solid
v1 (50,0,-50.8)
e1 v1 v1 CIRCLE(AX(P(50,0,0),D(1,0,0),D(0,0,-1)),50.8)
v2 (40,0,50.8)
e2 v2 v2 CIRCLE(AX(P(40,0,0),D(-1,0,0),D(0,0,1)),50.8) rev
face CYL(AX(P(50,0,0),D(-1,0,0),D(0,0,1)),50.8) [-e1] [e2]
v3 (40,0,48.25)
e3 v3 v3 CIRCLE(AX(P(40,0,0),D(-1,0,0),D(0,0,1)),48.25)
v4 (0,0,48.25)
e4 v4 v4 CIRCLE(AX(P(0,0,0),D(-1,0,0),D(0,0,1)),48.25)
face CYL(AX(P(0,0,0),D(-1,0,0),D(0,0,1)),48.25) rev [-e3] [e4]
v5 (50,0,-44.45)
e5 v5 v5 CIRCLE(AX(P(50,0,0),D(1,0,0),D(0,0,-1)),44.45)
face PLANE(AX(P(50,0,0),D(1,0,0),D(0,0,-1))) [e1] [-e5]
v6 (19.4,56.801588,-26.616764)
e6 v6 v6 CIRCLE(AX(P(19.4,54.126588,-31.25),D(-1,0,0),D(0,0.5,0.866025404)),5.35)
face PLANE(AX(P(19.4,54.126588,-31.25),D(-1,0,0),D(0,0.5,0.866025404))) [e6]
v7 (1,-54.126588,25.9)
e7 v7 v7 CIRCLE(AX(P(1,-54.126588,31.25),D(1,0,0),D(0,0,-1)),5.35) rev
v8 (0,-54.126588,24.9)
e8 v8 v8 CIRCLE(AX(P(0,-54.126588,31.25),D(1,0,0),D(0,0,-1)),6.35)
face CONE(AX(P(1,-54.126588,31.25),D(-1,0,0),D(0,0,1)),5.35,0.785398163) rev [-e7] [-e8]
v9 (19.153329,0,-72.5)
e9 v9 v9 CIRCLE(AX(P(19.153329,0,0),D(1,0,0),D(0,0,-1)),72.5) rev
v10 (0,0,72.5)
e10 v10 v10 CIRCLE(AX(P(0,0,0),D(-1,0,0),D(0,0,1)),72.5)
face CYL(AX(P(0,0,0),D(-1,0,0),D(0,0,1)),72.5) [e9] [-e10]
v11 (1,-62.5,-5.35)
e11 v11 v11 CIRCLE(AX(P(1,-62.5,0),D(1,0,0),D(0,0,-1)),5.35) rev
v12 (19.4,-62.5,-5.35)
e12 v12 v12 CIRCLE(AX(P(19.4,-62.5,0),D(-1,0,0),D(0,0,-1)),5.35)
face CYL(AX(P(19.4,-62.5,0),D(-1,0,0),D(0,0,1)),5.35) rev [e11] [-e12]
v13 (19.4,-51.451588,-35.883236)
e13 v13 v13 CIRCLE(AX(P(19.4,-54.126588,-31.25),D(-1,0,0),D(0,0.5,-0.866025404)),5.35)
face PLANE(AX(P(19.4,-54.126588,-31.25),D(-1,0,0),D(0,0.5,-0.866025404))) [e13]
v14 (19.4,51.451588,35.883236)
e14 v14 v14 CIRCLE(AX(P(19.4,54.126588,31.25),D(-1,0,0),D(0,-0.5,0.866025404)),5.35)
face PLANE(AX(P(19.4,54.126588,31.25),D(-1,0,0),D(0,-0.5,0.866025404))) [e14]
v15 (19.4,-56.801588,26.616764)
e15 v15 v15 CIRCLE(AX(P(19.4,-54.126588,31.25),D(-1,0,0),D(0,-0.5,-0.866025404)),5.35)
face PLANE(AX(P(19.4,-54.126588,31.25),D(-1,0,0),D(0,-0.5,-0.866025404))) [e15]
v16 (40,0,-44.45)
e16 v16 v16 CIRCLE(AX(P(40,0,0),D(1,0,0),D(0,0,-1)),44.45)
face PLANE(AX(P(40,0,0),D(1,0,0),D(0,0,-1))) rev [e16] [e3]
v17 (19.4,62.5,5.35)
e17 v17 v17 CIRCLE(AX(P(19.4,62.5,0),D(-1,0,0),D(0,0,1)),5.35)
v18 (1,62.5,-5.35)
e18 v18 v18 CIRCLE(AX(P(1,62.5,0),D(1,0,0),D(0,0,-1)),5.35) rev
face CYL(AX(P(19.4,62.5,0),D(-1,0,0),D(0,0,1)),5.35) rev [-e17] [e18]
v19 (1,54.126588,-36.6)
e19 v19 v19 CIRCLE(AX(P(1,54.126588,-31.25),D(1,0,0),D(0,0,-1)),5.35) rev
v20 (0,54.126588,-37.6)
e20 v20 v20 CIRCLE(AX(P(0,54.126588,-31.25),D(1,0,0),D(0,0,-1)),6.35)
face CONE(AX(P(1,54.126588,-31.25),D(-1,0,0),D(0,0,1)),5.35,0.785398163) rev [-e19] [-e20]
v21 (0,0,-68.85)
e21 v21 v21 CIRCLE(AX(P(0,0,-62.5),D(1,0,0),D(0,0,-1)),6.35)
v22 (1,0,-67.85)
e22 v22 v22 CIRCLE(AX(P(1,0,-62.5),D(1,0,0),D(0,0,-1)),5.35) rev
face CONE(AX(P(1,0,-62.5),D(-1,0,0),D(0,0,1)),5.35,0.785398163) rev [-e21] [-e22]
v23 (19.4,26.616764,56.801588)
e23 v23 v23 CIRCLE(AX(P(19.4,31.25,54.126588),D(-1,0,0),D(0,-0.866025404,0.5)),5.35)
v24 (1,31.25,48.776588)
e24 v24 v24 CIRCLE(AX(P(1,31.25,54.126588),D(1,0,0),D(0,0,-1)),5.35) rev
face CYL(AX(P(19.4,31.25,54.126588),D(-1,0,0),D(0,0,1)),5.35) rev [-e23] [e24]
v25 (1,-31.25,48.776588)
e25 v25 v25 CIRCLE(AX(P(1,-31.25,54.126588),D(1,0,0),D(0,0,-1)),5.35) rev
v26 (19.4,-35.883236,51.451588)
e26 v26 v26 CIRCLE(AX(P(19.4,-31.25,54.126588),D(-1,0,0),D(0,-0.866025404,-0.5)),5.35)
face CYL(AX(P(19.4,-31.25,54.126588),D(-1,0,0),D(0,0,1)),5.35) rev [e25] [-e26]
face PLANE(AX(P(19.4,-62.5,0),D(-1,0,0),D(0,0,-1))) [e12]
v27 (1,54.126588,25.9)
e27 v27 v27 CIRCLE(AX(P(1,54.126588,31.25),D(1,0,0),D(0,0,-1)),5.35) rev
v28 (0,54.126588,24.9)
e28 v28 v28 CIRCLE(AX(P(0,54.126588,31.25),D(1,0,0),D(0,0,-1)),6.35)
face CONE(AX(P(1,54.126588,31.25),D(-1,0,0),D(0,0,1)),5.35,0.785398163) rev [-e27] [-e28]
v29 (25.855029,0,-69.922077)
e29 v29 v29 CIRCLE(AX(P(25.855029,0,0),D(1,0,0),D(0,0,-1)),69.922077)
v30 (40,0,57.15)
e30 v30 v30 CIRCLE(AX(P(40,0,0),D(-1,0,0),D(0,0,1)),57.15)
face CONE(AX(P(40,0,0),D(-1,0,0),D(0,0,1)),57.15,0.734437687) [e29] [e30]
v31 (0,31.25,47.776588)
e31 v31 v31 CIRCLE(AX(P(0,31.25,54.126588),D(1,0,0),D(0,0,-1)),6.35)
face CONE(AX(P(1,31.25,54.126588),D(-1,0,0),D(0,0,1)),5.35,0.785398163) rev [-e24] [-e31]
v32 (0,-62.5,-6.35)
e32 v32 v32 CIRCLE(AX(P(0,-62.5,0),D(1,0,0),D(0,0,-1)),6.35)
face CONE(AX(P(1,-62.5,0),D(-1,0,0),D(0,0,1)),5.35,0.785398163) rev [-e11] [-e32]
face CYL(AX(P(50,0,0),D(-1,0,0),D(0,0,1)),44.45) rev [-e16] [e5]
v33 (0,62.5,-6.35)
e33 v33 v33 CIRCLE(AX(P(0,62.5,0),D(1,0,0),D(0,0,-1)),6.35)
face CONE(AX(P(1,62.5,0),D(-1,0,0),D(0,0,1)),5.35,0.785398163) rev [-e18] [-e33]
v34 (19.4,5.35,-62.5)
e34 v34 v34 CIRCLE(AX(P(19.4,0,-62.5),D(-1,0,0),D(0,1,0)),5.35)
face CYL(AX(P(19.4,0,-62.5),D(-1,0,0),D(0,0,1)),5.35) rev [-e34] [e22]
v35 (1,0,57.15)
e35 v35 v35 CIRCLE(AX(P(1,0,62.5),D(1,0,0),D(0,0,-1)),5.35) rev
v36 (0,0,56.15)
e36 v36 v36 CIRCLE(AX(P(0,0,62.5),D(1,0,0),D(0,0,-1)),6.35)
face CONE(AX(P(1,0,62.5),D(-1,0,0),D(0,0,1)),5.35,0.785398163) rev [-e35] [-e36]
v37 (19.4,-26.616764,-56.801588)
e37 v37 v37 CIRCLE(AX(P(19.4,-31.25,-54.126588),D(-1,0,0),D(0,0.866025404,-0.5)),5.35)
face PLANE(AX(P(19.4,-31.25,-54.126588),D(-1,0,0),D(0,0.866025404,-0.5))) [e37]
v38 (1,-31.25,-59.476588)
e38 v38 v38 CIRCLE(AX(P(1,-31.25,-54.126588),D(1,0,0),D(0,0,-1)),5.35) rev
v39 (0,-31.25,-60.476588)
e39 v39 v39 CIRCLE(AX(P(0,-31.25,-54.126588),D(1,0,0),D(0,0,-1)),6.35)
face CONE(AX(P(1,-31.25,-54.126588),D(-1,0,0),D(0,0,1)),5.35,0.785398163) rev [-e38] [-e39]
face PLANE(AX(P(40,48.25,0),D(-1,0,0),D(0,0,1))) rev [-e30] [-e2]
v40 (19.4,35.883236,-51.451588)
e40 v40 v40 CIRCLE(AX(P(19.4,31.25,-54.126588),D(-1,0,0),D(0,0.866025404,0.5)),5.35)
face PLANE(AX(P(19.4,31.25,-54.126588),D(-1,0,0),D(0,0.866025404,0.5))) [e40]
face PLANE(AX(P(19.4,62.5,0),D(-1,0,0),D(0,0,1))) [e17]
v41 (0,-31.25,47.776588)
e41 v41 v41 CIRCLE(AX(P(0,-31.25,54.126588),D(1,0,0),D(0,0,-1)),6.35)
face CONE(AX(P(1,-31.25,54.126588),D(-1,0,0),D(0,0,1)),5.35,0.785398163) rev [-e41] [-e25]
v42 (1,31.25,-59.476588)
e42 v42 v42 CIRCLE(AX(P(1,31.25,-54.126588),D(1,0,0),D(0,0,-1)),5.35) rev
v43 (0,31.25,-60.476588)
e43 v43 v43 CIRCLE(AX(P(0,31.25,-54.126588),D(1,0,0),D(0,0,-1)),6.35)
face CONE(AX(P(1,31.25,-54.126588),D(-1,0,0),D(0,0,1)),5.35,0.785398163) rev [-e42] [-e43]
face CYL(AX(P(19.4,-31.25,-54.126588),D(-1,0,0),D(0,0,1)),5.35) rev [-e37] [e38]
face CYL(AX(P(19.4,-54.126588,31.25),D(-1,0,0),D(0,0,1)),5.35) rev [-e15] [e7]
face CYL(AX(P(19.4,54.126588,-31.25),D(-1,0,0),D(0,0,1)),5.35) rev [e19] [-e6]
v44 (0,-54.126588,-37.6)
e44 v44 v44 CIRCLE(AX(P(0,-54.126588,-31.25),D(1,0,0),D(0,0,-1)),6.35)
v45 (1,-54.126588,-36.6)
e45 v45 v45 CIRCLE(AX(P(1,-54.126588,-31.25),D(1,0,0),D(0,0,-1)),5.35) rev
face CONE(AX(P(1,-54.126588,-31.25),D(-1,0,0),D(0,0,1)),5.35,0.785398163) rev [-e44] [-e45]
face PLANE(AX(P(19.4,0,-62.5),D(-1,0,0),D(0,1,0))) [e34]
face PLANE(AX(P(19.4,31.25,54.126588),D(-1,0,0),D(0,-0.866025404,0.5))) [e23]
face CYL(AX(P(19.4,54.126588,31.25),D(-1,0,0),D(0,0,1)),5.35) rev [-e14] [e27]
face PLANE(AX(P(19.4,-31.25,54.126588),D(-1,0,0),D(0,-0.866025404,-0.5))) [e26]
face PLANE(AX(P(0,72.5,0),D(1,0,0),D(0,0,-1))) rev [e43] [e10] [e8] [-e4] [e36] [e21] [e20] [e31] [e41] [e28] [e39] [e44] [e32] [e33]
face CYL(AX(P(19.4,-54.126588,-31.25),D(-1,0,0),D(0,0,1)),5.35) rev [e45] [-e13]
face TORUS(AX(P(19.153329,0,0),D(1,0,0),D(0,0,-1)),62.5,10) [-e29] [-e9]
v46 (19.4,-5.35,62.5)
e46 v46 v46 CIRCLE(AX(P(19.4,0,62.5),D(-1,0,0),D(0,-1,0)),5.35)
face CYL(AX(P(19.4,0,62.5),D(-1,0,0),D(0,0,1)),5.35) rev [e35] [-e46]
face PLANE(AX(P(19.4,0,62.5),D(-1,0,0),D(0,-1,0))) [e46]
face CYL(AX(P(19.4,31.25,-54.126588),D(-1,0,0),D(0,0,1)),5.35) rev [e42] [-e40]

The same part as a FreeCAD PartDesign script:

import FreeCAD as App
import Part
import Sketcher
from FreeCAD import Vector


def edges_at(feature, points):
    """Names of the edges that pass closest to the given points."""
    edges = feature.Shape.Edges
    near = lambda p: min(range(len(edges)), key=lambda i: edges[i].distToShape(Part.Vertex(*p))[0])
    return sorted({f"Edge{near(p) + 1}" for p in points})


def add_polygon(sketch, points):
    """Adds a closed chain of lines whose ends are joined by coincident constraints."""
    first, n = sketch.GeometryCount, len(points)
    for a, b in zip(points, points[1:] + points[:1]):
        sketch.addGeometry(Part.LineSegment(App.Vector(*a, 0), App.Vector(*b, 0)), False)
    for i in range(n):
        sketch.addConstraint(Sketcher.Constraint("Coincident", first + i, 2, first + (i + 1) % n, 1))

doc = App.newDocument("Part")
params = doc.addObject("Spreadsheet::Sheet", "Params")
for row, (alias, value) in enumerate([
    ("sketch1_width", "40 mm"),
    ("sketch1_width2", "23 mm"),
    ("sketch1_height", "8.9 mm"),
    ("sketch1_height2", "24.25 mm"),
    ("revolution_angle", "360 deg"),
    ("fillet_radius", "10 mm"),
    ("sketch2_diameter", "101.6 mm"),
    ("sketch2_diameter2", "88.9 mm"),
    ("pad1_length", "10 mm"),
    ("sketch3_diameter", "10.7 mm"),
    ("pocket1_length", "19.4 mm"),
    ("chamfer_size", "1 mm"),
    ("chamfer2_size", "1 mm"),
], start=1):
    params.set(f"A{row}", alias)
    params.set(f"B{row}", "=" + value)
    params.setAlias(f"B{row}", alias)

body = doc.addObject("PartDesign::Body", "Body")

# Sketch on XY plane
sketch1 = doc.addObject("Sketcher::SketchObject", "Sketch")
body.addObject(sketch1)
sketch1.AttachmentSupport = (doc.XY_Plane, [""])
sketch1.MapMode = "FlatFace"
add_polygon(sketch1, [(0, 48), (40, 48), (40, 57), (23, 72), (0, 72)])  # lines 0-4
sketch1.addConstraint(Sketcher.Constraint("Horizontal", 0))
sketch1.addConstraint(Sketcher.Constraint("Vertical", 1))
sketch1.addConstraint(Sketcher.Constraint("Horizontal", 3))
sketch1.addConstraint(Sketcher.Constraint("Vertical", 4))
sketch1.addConstraint(Sketcher.Constraint("PointOnObject", 3, 2, -2))
sketch1.addConstraint(Sketcher.Constraint("DistanceX", 0, 1, 0, 2, 40.0))
sketch1.addConstraint(Sketcher.Constraint("DistanceX", 3, 2, 3, 1, 23.0))
sketch1.addConstraint(Sketcher.Constraint("DistanceY", 1, 1, 1, 2, 8.9))
sketch1.addConstraint(Sketcher.Constraint("DistanceY", 4, 2, 4, 1, 24.25))
sketch1.addConstraint(Sketcher.Constraint("DistanceY", -1, 1, 2, 2, 72.5))
sketch1.setExpression("Constraints[10]", "Params.sketch1_width")
sketch1.setExpression("Constraints[11]", "Params.sketch1_width2")
sketch1.setExpression("Constraints[12]", "Params.sketch1_height")
sketch1.setExpression("Constraints[13]", "Params.sketch1_height2")
revolution = doc.addObject("PartDesign::Revolution", "Revolution")
body.addObject(revolution)
revolution.Profile = sketch1
revolution.ReferenceAxis = (sketch1, ["H_Axis"])
revolution.setExpression("Angle", "Params.revolution_angle")
doc.recompute()

fillet = doc.addObject("PartDesign::Fillet", "Fillet")
body.addObject(fillet)
fillet.Base = (revolution, edges_at(revolution, [(23, 0, -72.5)]))
fillet.setExpression("Radius", "Params.fillet_radius")

# Sketch on YZ plane
sketch2 = doc.addObject("Sketcher::SketchObject", "Sketch001")
body.addObject(sketch2)
sketch2.AttachmentSupport = (doc.YZ_Plane, [""])
sketch2.MapMode = "FlatFace"
sketch2.AttachmentOffset = App.Placement(Vector(0, 0, 40), App.Rotation())
sketch2.addGeometry(Part.Circle(Vector(0, 0, 0), Vector(0, 0, 1), 51), False)
sketch2.addGeometry(Part.Circle(Vector(0, 0, 0), Vector(0, 0, 1), 44), False)
sketch2.addConstraint(Sketcher.Constraint("Coincident", 0, 3, -1, 1))
sketch2.addConstraint(Sketcher.Constraint("Coincident", 1, 3, -1, 1))
sketch2.addConstraint(Sketcher.Constraint("Diameter", 0, 101.6))
sketch2.addConstraint(Sketcher.Constraint("Diameter", 1, 88.9))
sketch2.setExpression("Constraints[2]", "Params.sketch2_diameter")
sketch2.setExpression("Constraints[3]", "Params.sketch2_diameter2")
pad1 = doc.addObject("PartDesign::Pad", "Pad")
body.addObject(pad1)
pad1.Profile = sketch2
pad1.setExpression("Length", "Params.pad1_length")

# Sketch on YZ plane
sketch3 = doc.addObject("Sketcher::SketchObject", "Sketch002")
body.addObject(sketch3)
sketch3.AttachmentSupport = (doc.YZ_Plane, [""])
sketch3.MapMode = "FlatFace"
sketch3.addGeometry(Part.Circle(Vector(62, 0, 0), Vector(0, 0, 1), 5), False)
sketch3.addConstraint(Sketcher.Constraint("PointOnObject", 0, 3, -1))
sketch3.addConstraint(Sketcher.Constraint("Diameter", 0, 10.7))
sketch3.addConstraint(Sketcher.Constraint("DistanceX", -1, 1, 0, 3, 62.5))
sketch3.setExpression("Constraints[1]", "Params.sketch3_diameter")
pocket1 = doc.addObject("PartDesign::Pocket", "Pocket")
body.addObject(pocket1)
pocket1.Profile = sketch3
pocket1.setExpression("Length", "Params.pocket1_length")
pocket1.Reversed = True
doc.recompute()

chamfer = doc.addObject("PartDesign::Chamfer", "Chamfer")
body.addObject(chamfer)
chamfer.Base = (pocket1, edges_at(pocket1, [(0, 62.5, -5.35)]))
chamfer.setExpression("Size", "Params.chamfer_size")
doc.recompute()

polarpattern = doc.addObject("PartDesign::PolarPattern", "PolarPattern")
body.addObject(polarpattern)
polarpattern.Originals = [pocket1]
polarpattern.Axis = (doc.X_Axis, [""])
polarpattern.Angle = 360
polarpattern.Occurrences = 12
body.Tip = polarpattern
doc.recompute()

chamfer2 = doc.addObject("PartDesign::Chamfer", "Chamfer001")
body.addObject(chamfer2)
chamfer2.Base = (polarpattern, edges_at(polarpattern, [
    (0, 56.802, 26.617),
    (0, 35.883, 51.452),
    (0, 5.35, 62.5),
    (0, -26.617, 56.802),
    (0, -51.452, 35.883),
    (0, -62.5, 5.35),
    (0, -56.802, -26.617),
    (0, -35.883, -51.452),
    (0, -5.35, -62.5),
    (0, 26.617, -56.802),
    (0, 51.452, -35.883),
]))
chamfer2.setExpression("Size", "Params.chamfer2_size")

doc.recompute()
